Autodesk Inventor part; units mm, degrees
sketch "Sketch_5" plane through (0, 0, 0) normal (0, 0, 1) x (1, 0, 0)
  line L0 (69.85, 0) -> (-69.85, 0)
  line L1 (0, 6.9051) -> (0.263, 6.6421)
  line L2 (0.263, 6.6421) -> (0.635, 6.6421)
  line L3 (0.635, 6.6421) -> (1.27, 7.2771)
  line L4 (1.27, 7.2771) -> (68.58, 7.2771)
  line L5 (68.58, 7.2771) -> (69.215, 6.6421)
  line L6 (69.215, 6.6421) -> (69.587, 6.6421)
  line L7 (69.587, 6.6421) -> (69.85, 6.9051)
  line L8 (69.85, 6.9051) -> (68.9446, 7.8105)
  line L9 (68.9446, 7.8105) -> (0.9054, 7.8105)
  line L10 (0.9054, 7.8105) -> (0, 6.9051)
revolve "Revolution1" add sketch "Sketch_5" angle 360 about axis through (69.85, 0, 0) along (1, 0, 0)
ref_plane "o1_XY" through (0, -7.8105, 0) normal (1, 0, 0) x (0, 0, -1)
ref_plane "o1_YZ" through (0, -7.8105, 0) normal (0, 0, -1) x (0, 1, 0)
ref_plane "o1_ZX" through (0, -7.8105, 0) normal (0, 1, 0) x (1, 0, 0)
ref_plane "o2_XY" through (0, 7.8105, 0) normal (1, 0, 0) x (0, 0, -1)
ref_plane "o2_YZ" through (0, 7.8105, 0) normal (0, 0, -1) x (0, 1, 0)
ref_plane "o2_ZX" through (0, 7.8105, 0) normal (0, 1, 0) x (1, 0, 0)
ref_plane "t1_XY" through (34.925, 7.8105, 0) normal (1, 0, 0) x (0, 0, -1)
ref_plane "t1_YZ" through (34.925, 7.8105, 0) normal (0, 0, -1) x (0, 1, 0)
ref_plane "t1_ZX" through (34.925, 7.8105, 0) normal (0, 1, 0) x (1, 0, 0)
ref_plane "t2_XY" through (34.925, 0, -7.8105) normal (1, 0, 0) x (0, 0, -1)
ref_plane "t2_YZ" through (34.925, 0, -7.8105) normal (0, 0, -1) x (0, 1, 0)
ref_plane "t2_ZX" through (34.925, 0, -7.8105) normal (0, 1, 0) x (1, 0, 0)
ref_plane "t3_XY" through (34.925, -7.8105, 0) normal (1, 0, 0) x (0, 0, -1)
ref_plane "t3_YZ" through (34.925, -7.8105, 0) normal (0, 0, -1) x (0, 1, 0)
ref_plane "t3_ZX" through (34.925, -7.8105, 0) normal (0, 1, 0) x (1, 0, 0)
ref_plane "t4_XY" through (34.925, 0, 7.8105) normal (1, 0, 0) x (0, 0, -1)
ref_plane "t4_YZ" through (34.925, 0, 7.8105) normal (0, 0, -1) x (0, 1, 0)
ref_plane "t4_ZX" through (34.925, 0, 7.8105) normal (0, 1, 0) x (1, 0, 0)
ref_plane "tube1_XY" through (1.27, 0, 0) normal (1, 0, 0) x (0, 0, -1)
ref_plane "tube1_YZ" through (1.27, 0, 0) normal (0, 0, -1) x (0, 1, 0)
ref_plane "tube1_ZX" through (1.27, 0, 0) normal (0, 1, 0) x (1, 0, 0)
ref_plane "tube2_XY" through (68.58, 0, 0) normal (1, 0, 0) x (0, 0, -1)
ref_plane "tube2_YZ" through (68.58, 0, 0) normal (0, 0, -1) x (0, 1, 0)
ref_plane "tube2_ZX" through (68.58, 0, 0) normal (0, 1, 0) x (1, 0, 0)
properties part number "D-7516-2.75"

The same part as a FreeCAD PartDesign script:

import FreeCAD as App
import Part
import Sketcher
Q = App.Units.Quantity

doc = App.newDocument("Part")
body = doc.addObject("PartDesign::Body", "Body")

# Sketch on XY plane
sketch1 = body.newObject("Sketcher::SketchObject", "Sketch")
sketch1.AttachmentSupport = (doc.getObject("XY_Plane"), [""])
sketch1.MapMode = "FlatFace"
sketch1.addGeometry([
    Part.LineSegment(App.Vector(0.91, 7.81, 0), App.Vector(0, 6.91, 0)),  # 0
    Part.LineSegment(App.Vector(0, 6.91, 0), App.Vector(0.26, 6.64, 0)),  # 1
    Part.LineSegment(App.Vector(0.26, 6.64, 0), App.Vector(0.64, 6.64, 0)),  # 2
    Part.LineSegment(App.Vector(0.64, 6.64, 0), App.Vector(1.27, 7.28, 0)),  # 3
    Part.LineSegment(App.Vector(1.27, 7.28, 0), App.Vector(68.58, 7.28, 0)),  # 4
    Part.LineSegment(App.Vector(68.58, 7.28, 0), App.Vector(69.22, 6.64, 0)),  # 5
    Part.LineSegment(App.Vector(69.22, 6.64, 0), App.Vector(69.59, 6.64, 0)),  # 6
    Part.LineSegment(App.Vector(69.59, 6.64, 0), App.Vector(69.85, 6.91, 0)),  # 7
    Part.LineSegment(App.Vector(69.85, 6.91, 0), App.Vector(68.94, 7.81, 0)),  # 8
    Part.LineSegment(App.Vector(68.94, 7.81, 0), App.Vector(0.91, 7.81, 0)),  # 9
], False)
sketch1.addConstraint([
    Sketcher.Constraint("Coincident", 0, 2, 1, 1),
    Sketcher.Constraint("Coincident", 1, 2, 2, 1),
    Sketcher.Constraint("Coincident", 2, 2, 3, 1),
    Sketcher.Constraint("Coincident", 3, 2, 4, 1),
    Sketcher.Constraint("Coincident", 4, 2, 5, 1),
    Sketcher.Constraint("Coincident", 5, 2, 6, 1),
    Sketcher.Constraint("Coincident", 6, 2, 7, 1),
    Sketcher.Constraint("Coincident", 7, 2, 8, 1),
    Sketcher.Constraint("Coincident", 8, 2, 9, 1),
    Sketcher.Constraint("Coincident", 9, 2, 0, 1),
    Sketcher.Constraint("Horizontal", 2),
    Sketcher.Constraint("Horizontal", 4),
    Sketcher.Constraint("Horizontal", 6),
    Sketcher.Constraint("Horizontal", 9),
    Sketcher.Constraint("PointOnObject", 0, 2, -2),
    Sketcher.Constraint("Perpendicular", 0, 1),
    Sketcher.Constraint("Perpendicular", 1, 3),
    Sketcher.Constraint("Perpendicular", 3, 5),
    Sketcher.Constraint("Perpendicular", 5, 7),
    Sketcher.Constraint("Perpendicular", 7, 8),
    Sketcher.Constraint("Horizontal", 2, 2, 5, 2),
    Sketcher.Constraint("Horizontal", 0, 2, 7, 2),
    Sketcher.Constraint("Equal", 2, 6),
    Sketcher.Constraint("Equal", 3, 5),
    Sketcher.Constraint("DistanceX", 4, 1, 4, 2, Q("2.65 in")),
    Sketcher.Constraint("DistanceX", -1, 1, 4, 2, Q("2.7 in")),
    Sketcher.Constraint("DistanceX", 2, 2, 5, 2, Q("2.7 in")),
    Sketcher.Constraint("DistanceX", 9, 2, 9, 1, Q("2.6787 in")),
    Sketcher.Constraint("DistanceY", 4, 2, 8, 2, Q("0.021 in")),
    Sketcher.Constraint("DistanceY", -1, 1, 1, 2, Q("0.2615 in")),
])
revolution = body.newObject("PartDesign::Revolution", "Revolution")
revolution.Profile = sketch1
revolution.ReferenceAxis = (sketch1, ["H_Axis"])
revolution.Angle = 360

doc.recompute()
